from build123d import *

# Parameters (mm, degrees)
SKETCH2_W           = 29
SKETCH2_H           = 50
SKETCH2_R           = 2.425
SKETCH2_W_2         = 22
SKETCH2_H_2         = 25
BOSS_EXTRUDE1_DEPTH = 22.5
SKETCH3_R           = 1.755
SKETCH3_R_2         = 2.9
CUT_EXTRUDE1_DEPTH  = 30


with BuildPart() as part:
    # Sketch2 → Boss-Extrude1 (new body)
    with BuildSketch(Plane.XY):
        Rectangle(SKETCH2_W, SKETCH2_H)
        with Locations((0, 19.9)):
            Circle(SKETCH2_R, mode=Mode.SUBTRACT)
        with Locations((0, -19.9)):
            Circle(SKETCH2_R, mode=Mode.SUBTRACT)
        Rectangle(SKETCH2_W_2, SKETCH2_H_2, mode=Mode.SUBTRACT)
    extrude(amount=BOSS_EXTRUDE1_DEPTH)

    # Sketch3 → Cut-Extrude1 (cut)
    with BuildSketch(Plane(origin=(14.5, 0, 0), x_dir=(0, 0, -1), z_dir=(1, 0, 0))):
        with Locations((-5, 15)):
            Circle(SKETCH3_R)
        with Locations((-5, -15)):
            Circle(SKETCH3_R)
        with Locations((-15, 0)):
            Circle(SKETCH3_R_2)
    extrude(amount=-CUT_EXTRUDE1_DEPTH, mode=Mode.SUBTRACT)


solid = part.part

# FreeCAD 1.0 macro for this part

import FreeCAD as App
import Part
import Sketcher


def add_polygon(sketch, points):
    """Adds a closed chain of lines whose ends are joined by coincident constraints."""
    first, n = sketch.GeometryCount, len(points)
    for a, b in zip(points, points[1:] + points[:1]):
        sketch.addGeometry(Part.LineSegment(App.Vector(*a, 0), App.Vector(*b, 0)), False)
    for i in range(n):
        sketch.addConstraint(Sketcher.Constraint("Coincident", first + i, 2, first + (i + 1) % n, 1))

doc = App.newDocument("Part")
body = doc.addObject("PartDesign::Body", "Body")

# Sketch on XY plane
sketch1 = body.newObject("Sketcher::SketchObject", "Sketch")
sketch1.AttachmentSupport = (doc.getObject("XY_Plane"), [""])
sketch1.MapMode = "FlatFace"
add_polygon(sketch1, [(-14.5, 25), (-14.5, -25), (14.5, -25), (14.5, 25)])  # lines 0-3
sketch1.addGeometry(Part.Circle(App.Vector(0, -19.9, 0), App.Vector(0, 0, 1), 2.4), False)  # 4
add_polygon(sketch1, [(11, -12.5), (-11, -12.5), (-11, 12.5), (11, 12.5)])  # lines 5-8
sketch1.addGeometry(Part.Circle(App.Vector(0, 19.9, 0), App.Vector(0, 0, 1), 2.4), False)  # 9
sketch1.addConstraint([
    Sketcher.Constraint("Vertical", 0),
    Sketcher.Constraint("Horizontal", 1),
    Sketcher.Constraint("Vertical", 2),
    Sketcher.Constraint("Horizontal", 3),
    Sketcher.Constraint("Horizontal", 5),
    Sketcher.Constraint("Vertical", 6),
    Sketcher.Constraint("Horizontal", 7),
    Sketcher.Constraint("Vertical", 8),
    Sketcher.Constraint("Equal", 4, 9),
    Sketcher.Constraint("Symmetric", 4, 3, 9, 3, -1, 1),
    Sketcher.Constraint("Symmetric", 0, 2, 2, 2, -1, 1),
    Sketcher.Constraint("Symmetric", 5, 2, 7, 2, -1, 1),
    Sketcher.Constraint("PointOnObject", 4, 3, -2),
    Sketcher.Constraint("Diameter", 4, 4.85),
    Sketcher.Constraint("DistanceX", 1, 1, 1, 2, 29.0),
    Sketcher.Constraint("DistanceX", 5, 2, 5, 1, 22.0),
    Sketcher.Constraint("DistanceY", 0, 2, 0, 1, 50.0),
    Sketcher.Constraint("DistanceY", 6, 1, 6, 2, 25.0),
    Sketcher.Constraint("DistanceY", 4, 3, -1, 1, 19.9),
])
pad1 = body.newObject("PartDesign::Pad", "Pad")
pad1.Profile = sketch1
pad1.Length = 22.5

# Sketch on YZ plane
sketch2 = body.newObject("Sketcher::SketchObject", "Sketch001")
sketch2.AttachmentSupport = (doc.getObject("YZ_Plane"), [""])
sketch2.MapMode = "FlatFace"
sketch2.AttachmentOffset = App.Placement(App.Vector(0, 0, 14.5), App.Rotation())
sketch2.addGeometry([
    Part.Circle(App.Vector(15, 5, 0), App.Vector(0, 0, 1), 1.8),
    Part.Circle(App.Vector(-15, 5, 0), App.Vector(0, 0, 1), 1.8),
    Part.Circle(App.Vector(0, 15, 0), App.Vector(0, 0, 1), 2.9),
], False)
sketch2.addConstraint([
    Sketcher.Constraint("Equal", 0, 1),
    Sketcher.Constraint("Symmetric", 0, 3, 1, 3, -2),
    Sketcher.Constraint("PointOnObject", 2, 3, -2),
    Sketcher.Constraint("Diameter", 2, 5.8),
    Sketcher.Constraint("Diameter", 0, 3.51),
    Sketcher.Constraint("DistanceX", -1, 1, 0, 3, 15.0),
    Sketcher.Constraint("DistanceY", -1, 1, 0, 3, 5.0),
    Sketcher.Constraint("DistanceY", -1, 1, 2, 3, 15.0),
])
pocket1 = body.newObject("PartDesign::Pocket", "Pocket")
pocket1.Profile = sketch2
pocket1.Length = 30

doc.recompute()
